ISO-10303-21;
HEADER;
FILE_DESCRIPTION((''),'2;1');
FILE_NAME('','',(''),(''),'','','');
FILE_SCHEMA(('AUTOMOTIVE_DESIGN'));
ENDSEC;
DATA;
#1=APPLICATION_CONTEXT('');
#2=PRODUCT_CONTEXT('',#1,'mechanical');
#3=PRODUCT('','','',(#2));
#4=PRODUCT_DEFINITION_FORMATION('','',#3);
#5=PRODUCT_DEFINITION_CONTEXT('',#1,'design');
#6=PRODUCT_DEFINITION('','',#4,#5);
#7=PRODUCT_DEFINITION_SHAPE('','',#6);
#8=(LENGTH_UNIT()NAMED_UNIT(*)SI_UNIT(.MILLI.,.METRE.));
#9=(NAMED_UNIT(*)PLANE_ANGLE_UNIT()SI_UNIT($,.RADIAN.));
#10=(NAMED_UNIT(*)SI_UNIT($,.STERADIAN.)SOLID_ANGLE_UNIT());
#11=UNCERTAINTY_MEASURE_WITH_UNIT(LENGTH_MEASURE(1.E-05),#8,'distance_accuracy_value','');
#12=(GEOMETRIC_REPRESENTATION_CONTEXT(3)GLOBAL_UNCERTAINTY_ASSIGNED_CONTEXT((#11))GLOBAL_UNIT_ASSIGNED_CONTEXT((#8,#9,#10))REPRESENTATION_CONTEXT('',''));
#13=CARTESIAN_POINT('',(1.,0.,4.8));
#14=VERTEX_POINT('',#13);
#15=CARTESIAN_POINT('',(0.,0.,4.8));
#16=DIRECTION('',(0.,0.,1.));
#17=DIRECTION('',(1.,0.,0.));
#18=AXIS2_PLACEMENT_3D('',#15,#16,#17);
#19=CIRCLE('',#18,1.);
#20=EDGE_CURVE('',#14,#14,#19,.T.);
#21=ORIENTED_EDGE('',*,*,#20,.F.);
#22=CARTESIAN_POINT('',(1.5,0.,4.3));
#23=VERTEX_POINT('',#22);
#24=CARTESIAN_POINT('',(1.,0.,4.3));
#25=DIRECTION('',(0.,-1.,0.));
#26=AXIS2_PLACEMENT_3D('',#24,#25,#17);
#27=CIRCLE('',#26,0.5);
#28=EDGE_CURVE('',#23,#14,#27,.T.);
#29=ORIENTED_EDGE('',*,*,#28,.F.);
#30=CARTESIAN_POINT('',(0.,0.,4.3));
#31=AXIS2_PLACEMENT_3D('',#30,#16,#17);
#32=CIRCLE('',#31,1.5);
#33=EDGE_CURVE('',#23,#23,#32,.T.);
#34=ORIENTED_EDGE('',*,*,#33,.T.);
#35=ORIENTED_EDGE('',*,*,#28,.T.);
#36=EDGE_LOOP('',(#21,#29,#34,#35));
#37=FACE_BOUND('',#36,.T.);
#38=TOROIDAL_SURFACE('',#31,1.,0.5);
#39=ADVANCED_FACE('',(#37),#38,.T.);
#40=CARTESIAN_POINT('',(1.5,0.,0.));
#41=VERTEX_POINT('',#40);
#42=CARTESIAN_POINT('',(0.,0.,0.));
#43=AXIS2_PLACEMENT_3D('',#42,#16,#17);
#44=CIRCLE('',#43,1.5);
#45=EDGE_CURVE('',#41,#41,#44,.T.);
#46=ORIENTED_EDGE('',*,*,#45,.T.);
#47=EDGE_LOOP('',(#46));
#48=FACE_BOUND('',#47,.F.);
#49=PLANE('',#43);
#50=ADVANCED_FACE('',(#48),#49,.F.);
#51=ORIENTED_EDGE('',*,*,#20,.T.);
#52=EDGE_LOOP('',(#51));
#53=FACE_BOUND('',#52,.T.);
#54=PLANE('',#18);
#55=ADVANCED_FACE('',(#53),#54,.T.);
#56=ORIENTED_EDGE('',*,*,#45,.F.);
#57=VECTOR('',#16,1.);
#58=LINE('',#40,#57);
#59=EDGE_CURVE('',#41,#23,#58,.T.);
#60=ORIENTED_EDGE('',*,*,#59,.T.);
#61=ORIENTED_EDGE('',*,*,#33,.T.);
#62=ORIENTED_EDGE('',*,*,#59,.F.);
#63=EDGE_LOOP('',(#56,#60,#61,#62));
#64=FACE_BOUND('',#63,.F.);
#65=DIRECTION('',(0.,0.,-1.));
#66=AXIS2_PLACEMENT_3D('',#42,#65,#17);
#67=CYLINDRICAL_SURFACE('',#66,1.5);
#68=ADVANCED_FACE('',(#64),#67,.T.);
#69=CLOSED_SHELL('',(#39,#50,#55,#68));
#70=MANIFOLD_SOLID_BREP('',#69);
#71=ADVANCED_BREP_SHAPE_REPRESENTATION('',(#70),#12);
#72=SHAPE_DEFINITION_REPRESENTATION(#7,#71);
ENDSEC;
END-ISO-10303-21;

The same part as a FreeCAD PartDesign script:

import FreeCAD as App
import Part
import Sketcher
from FreeCAD import Vector


def edges_at(feature, points):
    """Names of the edges that pass closest to the given points."""
    edges = feature.Shape.Edges
    near = lambda p: min(range(len(edges)), key=lambda i: edges[i].distToShape(Part.Vertex(*p))[0])
    return sorted({f"Edge{near(p) + 1}" for p in points})

doc = App.newDocument("Part")
body = doc.addObject("PartDesign::Body", "Body")

sketch1 = body.newObject("Sketcher::SketchObject", "Sketch")
sketch1.AttachmentSupport = (doc.getObject("XY_Plane"), [""])
sketch1.MapMode = "FlatFace"
sketch1.addGeometry(Part.Circle(Vector(0, 0, 0), Vector(0, 0, 1), 1.5), False)
sketch1.addConstraint(Sketcher.Constraint("Coincident", 0, 3, -1, 1))
sketch1.addConstraint(Sketcher.Constraint("Diameter", 0, 3.0))
pad1 = body.newObject("PartDesign::Pad", "Pad")
pad1.Profile = sketch1
pad1.Length = 4.8
doc.recompute()

fillet = body.newObject("PartDesign::Fillet", "Fillet")
fillet.Base = (pad1, edges_at(pad1, [(-1.5, 0, 4.8)]))
fillet.Radius = 0.5

doc.recompute()
